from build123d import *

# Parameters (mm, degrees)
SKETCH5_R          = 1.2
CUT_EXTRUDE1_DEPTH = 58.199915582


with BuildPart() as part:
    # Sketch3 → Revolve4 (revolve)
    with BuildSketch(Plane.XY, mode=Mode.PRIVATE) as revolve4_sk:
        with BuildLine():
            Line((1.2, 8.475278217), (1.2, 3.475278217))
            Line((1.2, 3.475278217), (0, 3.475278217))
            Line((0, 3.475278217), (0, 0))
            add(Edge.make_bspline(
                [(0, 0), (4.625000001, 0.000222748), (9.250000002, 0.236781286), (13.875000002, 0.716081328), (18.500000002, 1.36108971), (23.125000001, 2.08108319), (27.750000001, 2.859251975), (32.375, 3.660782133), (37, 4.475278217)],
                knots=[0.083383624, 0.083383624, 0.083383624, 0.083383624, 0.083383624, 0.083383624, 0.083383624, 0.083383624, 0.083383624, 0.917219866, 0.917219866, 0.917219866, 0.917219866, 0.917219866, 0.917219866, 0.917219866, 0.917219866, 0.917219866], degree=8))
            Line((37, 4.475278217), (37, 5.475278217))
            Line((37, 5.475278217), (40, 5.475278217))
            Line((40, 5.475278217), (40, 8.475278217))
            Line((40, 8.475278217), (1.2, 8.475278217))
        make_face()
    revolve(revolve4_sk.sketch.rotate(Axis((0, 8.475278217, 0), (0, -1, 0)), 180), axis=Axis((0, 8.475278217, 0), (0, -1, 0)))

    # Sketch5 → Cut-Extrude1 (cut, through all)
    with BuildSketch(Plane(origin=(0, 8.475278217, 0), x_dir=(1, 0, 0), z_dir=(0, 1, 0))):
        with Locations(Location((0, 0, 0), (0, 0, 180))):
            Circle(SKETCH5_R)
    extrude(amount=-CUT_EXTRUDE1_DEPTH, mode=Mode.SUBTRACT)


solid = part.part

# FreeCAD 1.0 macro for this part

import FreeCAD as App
import Part
import Sketcher

V = App.Vector

doc = App.newDocument("Part")
body = doc.addObject("PartDesign::Body", "Body")

# Sketch on XY plane
sketch1 = body.newObject("Sketcher::SketchObject", "Sketch")
sketch1.AttachmentSupport = (doc.getObject("XY_Plane"), [""])
sketch1.MapMode = "FlatFace"
sketch1.addGeometry([
    Part.LineSegment(V(1.2, 8.475278, 0), V(1.2, 3.475278, 0)),  # 0
    Part.LineSegment(V(1.2, 3.475278, 0), V(0, 3.475278, 0)),  # 1
    Part.LineSegment(V(0, 3.475278, 0), V(0, 0, 0)),  # 2
    Part.BSplineCurve([V(0, 0, 0), V(4.625, 0.000223, 0), V(9.25, 0.236781, 0), V(13.875, 0.716081, 0), V(18.5, 1.36109, 0), V(23.125, 2.081083, 0), V(27.75, 2.859252, 0), V(32.375, 3.660782, 0), V(37, 4.475278, 0)], [9, 9], [0.083383624, 0.917219866], False, 8, [1, 1, 1, 1, 1, 1, 1, 1, 1], False),  # 3
    Part.LineSegment(V(37, 4.475278, 0), V(37, 5.475278, 0)),  # 4
    Part.LineSegment(V(37, 5.475278, 0), V(40, 5.475278, 0)),  # 5
    Part.LineSegment(V(40, 5.475278, 0), V(40, 8.475278, 0)),  # 6
    Part.LineSegment(V(40, 8.475278, 0), V(1.2, 8.475278, 0)),  # 7
], False)
sketch1.addConstraint([
    Sketcher.Constraint("Block", 3),
    Sketcher.Constraint("Coincident", 0, 2, 1, 1),
    Sketcher.Constraint("Coincident", 1, 2, 2, 1),
    Sketcher.Constraint("Coincident", 2, 2, 3, 1),
    Sketcher.Constraint("Coincident", 3, 2, 4, 1),
    Sketcher.Constraint("Coincident", 4, 2, 5, 1),
    Sketcher.Constraint("Coincident", 5, 2, 6, 1),
    Sketcher.Constraint("Coincident", 6, 2, 7, 1),
    Sketcher.Constraint("Coincident", 7, 2, 0, 1),
    Sketcher.Constraint("Vertical", 0),
    Sketcher.Constraint("Horizontal", 1),
    Sketcher.Constraint("Vertical", 2),
    Sketcher.Constraint("Vertical", 4),
    Sketcher.Constraint("Horizontal", 5),
    Sketcher.Constraint("Vertical", 6),
    Sketcher.Constraint("Horizontal", 7),
    Sketcher.Constraint("Equal", 5, 6),
    Sketcher.Constraint("DistanceX", 5, 1, 5, 2, 3.0),
    Sketcher.Constraint("DistanceY", 0, 2, 0, 1, 5.0),
    Sketcher.Constraint("DistanceY", 4, 1, 4, 2, 1.0),
    Sketcher.Constraint("DistanceX", 1, 2, 1, 1, 1.2),
])
revolution = body.newObject("PartDesign::Revolution", "Revolution")
revolution.Profile = sketch1
revolution.ReferenceAxis = (sketch1, ["V_Axis"])
revolution.Angle = 360

# Sketch on XZ plane
sketch2 = body.newObject("Sketcher::SketchObject", "Sketch001")
sketch2.AttachmentSupport = (doc.getObject("XZ_Plane"), [""])
sketch2.MapMode = "FlatFace"
sketch2.AttachmentOffset = App.Placement(V(0, 0, -8.475278), App.Rotation())
sketch2.addGeometry(Part.Circle(V(0, 0, 0), V(0, 0, 1), 1.2), False)
sketch2.addConstraint([
    Sketcher.Constraint("Coincident", 0, 3, -1, 1),
    Sketcher.Constraint("Diameter", 0, 2.4),
])
pocket1 = body.newObject("PartDesign::Pocket", "Pocket")
pocket1.Profile = sketch2
pocket1.Type = "ThroughAll"
pocket1.Reversed = True

doc.recompute()
